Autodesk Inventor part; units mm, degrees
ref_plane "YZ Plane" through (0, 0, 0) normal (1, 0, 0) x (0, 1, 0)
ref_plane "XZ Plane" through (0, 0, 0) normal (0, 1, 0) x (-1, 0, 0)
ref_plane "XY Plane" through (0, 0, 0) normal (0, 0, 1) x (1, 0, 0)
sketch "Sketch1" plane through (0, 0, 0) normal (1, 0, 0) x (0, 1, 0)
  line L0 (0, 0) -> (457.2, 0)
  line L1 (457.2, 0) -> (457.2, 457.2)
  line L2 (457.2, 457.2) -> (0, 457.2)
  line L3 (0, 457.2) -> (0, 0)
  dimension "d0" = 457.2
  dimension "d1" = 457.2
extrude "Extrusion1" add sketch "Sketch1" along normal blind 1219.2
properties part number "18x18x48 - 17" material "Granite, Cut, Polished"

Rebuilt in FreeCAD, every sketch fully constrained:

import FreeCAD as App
import Part
import Sketcher

V = App.Vector
Q = App.Units.Quantity


def add_polygon(sketch, points):
    """Adds a closed chain of lines whose ends are joined by coincident constraints."""
    first, n = sketch.GeometryCount, len(points)
    for a, b in zip(points, points[1:] + points[:1]):
        sketch.addGeometry(Part.LineSegment(App.Vector(*a, 0), App.Vector(*b, 0)), False)
    for i in range(n):
        sketch.addConstraint(Sketcher.Constraint("Coincident", first + i, 2, first + (i + 1) % n, 1))

doc = App.newDocument("Part")
params = doc.addObject("Spreadsheet::Sheet", "Params")
for row, (alias, value) in enumerate([
    ("sketch1_width", "18 in"),
    ("pad1_length", "48 in"),
], start=1):
    params.set(f"A{row}", alias)
    params.set(f"B{row}", "=" + value)
    params.setAlias(f"B{row}", alias)

body = doc.addObject("PartDesign::Body", "Body")

# Sketch on YZ plane
sketch1 = body.newObject("Sketcher::SketchObject", "Sketch")
sketch1.AttachmentSupport = (doc.getObject("YZ_Plane"), [""])
sketch1.MapMode = "FlatFace"
add_polygon(sketch1, [(0, 457), (0, 0), (457, 0), (457, 457)])  # lines 0-3
sketch1.addConstraint([
    Sketcher.Constraint("Vertical", 0),
    Sketcher.Constraint("Horizontal", 1),
    Sketcher.Constraint("Vertical", 2),
    Sketcher.Constraint("Horizontal", 3),
    Sketcher.Constraint("Coincident", 0, 2, -1, 1),
    Sketcher.Constraint("Equal", 3, 0),
    Sketcher.Constraint("DistanceX", 1, 1, 1, 2, Q("18 in")),
])
sketch1.setExpression("Constraints[10]", "Params.sketch1_width")
pad1 = body.newObject("PartDesign::Pad", "Pad")
pad1.Profile = sketch1
pad1.setExpression("Length", "Params.pad1_length")

doc.recompute()
